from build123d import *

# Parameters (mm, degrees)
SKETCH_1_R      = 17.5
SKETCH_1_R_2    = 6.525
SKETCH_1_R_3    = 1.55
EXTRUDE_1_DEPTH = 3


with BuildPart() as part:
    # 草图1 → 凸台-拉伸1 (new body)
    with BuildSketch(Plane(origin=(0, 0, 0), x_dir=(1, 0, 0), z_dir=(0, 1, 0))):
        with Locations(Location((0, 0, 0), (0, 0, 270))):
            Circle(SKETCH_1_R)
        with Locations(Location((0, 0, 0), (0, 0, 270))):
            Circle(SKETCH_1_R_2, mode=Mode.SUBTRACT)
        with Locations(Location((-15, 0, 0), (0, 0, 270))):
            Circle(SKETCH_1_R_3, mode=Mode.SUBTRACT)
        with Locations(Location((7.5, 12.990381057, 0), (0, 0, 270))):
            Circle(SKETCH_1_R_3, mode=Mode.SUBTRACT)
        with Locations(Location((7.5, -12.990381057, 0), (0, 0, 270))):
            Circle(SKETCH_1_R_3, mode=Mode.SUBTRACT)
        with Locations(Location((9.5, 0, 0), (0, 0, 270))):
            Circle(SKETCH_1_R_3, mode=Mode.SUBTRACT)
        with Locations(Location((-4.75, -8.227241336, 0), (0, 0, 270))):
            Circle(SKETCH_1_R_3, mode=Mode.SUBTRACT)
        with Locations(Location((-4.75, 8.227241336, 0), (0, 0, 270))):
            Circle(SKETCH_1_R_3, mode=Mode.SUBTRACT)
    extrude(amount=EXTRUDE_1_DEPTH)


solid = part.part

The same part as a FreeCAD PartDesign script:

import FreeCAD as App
import Part
import Sketcher
Q = App.Units.Quantity

doc = App.newDocument("Part")
body = doc.addObject("PartDesign::Body", "Body")

# Sketch on XZ plane
sketch1 = body.newObject("Sketcher::SketchObject", "Sketch")
sketch1.AttachmentSupport = (doc.getObject("XZ_Plane"), [""])
sketch1.MapMode = "FlatFace"
sketch1.addGeometry([
    Part.Circle(App.Vector(0, 0, 0), App.Vector(0, 0, 1), 17.5),  # 0
    Part.Circle(App.Vector(-4.8, -8.2, 0), App.Vector(0, 0, 1), 1.6),  # 1
    Part.Circle(App.Vector(-15, 0, 0), App.Vector(0, 0, 1), 1.6),  # 2
    Part.Circle(App.Vector(-4.8, 8.2, 0), App.Vector(0, 0, 1), 1.6),  # 3
    Part.Circle(App.Vector(7.5, -13, 0), App.Vector(0, 0, 1), 1.6),  # 4
    Part.Circle(App.Vector(9.5, 0, 0), App.Vector(0, 0, 1), 1.6),  # 5
    Part.Circle(App.Vector(0, 0, 0), App.Vector(0, 0, 1), 6.5),  # 6
    Part.Circle(App.Vector(7.5, 13, 0), App.Vector(0, 0, 1), 1.6),  # 7
], False)
sketch1.addConstraint([
    Sketcher.Constraint("Coincident", 0, 3, -1, 1),
    Sketcher.Constraint("Coincident", 6, 3, -1, 1),
    Sketcher.Constraint("Equal", 1, 2),
    Sketcher.Constraint("Equal", 2, 3),
    Sketcher.Constraint("Equal", 3, 4),
    Sketcher.Constraint("Equal", 4, 5),
    Sketcher.Constraint("Equal", 5, 7),
    Sketcher.Constraint("Symmetric", 1, 3, 3, 3, -1),
    Sketcher.Constraint("Symmetric", 4, 3, 7, 3, -1),
    Sketcher.Constraint("PointOnObject", 2, 3, -1),
    Sketcher.Constraint("PointOnObject", 5, 3, -1),
    Sketcher.Constraint("Diameter", 0, Q("35 mm")),
    Sketcher.Constraint("Diameter", 1, Q("3.1 mm")),
    Sketcher.Constraint("Diameter", 6, Q("13.05 mm")),
    Sketcher.Constraint("DistanceX", 2, 3, -1, 1, Q("15 mm")),
    Sketcher.Constraint("DistanceX", 4, 3, 5, 3, Q("2 mm")),
    Sketcher.Constraint("DistanceX", -1, 1, 4, 3, Q("7.5 mm")),
    Sketcher.Constraint("DistanceX", 1, 3, -1, 1, Q("4.75 mm")),
    Sketcher.Constraint("DistanceY", 1, 3, -1, 1, Q("8.227241 mm")),
    Sketcher.Constraint("DistanceY", 4, 3, -1, 1, Q("12.990381 mm")),
])
pad1 = body.newObject("PartDesign::Pad", "Pad")
pad1.Profile = sketch1
pad1.Length = 3
pad1.Reversed = True

doc.recompute()
